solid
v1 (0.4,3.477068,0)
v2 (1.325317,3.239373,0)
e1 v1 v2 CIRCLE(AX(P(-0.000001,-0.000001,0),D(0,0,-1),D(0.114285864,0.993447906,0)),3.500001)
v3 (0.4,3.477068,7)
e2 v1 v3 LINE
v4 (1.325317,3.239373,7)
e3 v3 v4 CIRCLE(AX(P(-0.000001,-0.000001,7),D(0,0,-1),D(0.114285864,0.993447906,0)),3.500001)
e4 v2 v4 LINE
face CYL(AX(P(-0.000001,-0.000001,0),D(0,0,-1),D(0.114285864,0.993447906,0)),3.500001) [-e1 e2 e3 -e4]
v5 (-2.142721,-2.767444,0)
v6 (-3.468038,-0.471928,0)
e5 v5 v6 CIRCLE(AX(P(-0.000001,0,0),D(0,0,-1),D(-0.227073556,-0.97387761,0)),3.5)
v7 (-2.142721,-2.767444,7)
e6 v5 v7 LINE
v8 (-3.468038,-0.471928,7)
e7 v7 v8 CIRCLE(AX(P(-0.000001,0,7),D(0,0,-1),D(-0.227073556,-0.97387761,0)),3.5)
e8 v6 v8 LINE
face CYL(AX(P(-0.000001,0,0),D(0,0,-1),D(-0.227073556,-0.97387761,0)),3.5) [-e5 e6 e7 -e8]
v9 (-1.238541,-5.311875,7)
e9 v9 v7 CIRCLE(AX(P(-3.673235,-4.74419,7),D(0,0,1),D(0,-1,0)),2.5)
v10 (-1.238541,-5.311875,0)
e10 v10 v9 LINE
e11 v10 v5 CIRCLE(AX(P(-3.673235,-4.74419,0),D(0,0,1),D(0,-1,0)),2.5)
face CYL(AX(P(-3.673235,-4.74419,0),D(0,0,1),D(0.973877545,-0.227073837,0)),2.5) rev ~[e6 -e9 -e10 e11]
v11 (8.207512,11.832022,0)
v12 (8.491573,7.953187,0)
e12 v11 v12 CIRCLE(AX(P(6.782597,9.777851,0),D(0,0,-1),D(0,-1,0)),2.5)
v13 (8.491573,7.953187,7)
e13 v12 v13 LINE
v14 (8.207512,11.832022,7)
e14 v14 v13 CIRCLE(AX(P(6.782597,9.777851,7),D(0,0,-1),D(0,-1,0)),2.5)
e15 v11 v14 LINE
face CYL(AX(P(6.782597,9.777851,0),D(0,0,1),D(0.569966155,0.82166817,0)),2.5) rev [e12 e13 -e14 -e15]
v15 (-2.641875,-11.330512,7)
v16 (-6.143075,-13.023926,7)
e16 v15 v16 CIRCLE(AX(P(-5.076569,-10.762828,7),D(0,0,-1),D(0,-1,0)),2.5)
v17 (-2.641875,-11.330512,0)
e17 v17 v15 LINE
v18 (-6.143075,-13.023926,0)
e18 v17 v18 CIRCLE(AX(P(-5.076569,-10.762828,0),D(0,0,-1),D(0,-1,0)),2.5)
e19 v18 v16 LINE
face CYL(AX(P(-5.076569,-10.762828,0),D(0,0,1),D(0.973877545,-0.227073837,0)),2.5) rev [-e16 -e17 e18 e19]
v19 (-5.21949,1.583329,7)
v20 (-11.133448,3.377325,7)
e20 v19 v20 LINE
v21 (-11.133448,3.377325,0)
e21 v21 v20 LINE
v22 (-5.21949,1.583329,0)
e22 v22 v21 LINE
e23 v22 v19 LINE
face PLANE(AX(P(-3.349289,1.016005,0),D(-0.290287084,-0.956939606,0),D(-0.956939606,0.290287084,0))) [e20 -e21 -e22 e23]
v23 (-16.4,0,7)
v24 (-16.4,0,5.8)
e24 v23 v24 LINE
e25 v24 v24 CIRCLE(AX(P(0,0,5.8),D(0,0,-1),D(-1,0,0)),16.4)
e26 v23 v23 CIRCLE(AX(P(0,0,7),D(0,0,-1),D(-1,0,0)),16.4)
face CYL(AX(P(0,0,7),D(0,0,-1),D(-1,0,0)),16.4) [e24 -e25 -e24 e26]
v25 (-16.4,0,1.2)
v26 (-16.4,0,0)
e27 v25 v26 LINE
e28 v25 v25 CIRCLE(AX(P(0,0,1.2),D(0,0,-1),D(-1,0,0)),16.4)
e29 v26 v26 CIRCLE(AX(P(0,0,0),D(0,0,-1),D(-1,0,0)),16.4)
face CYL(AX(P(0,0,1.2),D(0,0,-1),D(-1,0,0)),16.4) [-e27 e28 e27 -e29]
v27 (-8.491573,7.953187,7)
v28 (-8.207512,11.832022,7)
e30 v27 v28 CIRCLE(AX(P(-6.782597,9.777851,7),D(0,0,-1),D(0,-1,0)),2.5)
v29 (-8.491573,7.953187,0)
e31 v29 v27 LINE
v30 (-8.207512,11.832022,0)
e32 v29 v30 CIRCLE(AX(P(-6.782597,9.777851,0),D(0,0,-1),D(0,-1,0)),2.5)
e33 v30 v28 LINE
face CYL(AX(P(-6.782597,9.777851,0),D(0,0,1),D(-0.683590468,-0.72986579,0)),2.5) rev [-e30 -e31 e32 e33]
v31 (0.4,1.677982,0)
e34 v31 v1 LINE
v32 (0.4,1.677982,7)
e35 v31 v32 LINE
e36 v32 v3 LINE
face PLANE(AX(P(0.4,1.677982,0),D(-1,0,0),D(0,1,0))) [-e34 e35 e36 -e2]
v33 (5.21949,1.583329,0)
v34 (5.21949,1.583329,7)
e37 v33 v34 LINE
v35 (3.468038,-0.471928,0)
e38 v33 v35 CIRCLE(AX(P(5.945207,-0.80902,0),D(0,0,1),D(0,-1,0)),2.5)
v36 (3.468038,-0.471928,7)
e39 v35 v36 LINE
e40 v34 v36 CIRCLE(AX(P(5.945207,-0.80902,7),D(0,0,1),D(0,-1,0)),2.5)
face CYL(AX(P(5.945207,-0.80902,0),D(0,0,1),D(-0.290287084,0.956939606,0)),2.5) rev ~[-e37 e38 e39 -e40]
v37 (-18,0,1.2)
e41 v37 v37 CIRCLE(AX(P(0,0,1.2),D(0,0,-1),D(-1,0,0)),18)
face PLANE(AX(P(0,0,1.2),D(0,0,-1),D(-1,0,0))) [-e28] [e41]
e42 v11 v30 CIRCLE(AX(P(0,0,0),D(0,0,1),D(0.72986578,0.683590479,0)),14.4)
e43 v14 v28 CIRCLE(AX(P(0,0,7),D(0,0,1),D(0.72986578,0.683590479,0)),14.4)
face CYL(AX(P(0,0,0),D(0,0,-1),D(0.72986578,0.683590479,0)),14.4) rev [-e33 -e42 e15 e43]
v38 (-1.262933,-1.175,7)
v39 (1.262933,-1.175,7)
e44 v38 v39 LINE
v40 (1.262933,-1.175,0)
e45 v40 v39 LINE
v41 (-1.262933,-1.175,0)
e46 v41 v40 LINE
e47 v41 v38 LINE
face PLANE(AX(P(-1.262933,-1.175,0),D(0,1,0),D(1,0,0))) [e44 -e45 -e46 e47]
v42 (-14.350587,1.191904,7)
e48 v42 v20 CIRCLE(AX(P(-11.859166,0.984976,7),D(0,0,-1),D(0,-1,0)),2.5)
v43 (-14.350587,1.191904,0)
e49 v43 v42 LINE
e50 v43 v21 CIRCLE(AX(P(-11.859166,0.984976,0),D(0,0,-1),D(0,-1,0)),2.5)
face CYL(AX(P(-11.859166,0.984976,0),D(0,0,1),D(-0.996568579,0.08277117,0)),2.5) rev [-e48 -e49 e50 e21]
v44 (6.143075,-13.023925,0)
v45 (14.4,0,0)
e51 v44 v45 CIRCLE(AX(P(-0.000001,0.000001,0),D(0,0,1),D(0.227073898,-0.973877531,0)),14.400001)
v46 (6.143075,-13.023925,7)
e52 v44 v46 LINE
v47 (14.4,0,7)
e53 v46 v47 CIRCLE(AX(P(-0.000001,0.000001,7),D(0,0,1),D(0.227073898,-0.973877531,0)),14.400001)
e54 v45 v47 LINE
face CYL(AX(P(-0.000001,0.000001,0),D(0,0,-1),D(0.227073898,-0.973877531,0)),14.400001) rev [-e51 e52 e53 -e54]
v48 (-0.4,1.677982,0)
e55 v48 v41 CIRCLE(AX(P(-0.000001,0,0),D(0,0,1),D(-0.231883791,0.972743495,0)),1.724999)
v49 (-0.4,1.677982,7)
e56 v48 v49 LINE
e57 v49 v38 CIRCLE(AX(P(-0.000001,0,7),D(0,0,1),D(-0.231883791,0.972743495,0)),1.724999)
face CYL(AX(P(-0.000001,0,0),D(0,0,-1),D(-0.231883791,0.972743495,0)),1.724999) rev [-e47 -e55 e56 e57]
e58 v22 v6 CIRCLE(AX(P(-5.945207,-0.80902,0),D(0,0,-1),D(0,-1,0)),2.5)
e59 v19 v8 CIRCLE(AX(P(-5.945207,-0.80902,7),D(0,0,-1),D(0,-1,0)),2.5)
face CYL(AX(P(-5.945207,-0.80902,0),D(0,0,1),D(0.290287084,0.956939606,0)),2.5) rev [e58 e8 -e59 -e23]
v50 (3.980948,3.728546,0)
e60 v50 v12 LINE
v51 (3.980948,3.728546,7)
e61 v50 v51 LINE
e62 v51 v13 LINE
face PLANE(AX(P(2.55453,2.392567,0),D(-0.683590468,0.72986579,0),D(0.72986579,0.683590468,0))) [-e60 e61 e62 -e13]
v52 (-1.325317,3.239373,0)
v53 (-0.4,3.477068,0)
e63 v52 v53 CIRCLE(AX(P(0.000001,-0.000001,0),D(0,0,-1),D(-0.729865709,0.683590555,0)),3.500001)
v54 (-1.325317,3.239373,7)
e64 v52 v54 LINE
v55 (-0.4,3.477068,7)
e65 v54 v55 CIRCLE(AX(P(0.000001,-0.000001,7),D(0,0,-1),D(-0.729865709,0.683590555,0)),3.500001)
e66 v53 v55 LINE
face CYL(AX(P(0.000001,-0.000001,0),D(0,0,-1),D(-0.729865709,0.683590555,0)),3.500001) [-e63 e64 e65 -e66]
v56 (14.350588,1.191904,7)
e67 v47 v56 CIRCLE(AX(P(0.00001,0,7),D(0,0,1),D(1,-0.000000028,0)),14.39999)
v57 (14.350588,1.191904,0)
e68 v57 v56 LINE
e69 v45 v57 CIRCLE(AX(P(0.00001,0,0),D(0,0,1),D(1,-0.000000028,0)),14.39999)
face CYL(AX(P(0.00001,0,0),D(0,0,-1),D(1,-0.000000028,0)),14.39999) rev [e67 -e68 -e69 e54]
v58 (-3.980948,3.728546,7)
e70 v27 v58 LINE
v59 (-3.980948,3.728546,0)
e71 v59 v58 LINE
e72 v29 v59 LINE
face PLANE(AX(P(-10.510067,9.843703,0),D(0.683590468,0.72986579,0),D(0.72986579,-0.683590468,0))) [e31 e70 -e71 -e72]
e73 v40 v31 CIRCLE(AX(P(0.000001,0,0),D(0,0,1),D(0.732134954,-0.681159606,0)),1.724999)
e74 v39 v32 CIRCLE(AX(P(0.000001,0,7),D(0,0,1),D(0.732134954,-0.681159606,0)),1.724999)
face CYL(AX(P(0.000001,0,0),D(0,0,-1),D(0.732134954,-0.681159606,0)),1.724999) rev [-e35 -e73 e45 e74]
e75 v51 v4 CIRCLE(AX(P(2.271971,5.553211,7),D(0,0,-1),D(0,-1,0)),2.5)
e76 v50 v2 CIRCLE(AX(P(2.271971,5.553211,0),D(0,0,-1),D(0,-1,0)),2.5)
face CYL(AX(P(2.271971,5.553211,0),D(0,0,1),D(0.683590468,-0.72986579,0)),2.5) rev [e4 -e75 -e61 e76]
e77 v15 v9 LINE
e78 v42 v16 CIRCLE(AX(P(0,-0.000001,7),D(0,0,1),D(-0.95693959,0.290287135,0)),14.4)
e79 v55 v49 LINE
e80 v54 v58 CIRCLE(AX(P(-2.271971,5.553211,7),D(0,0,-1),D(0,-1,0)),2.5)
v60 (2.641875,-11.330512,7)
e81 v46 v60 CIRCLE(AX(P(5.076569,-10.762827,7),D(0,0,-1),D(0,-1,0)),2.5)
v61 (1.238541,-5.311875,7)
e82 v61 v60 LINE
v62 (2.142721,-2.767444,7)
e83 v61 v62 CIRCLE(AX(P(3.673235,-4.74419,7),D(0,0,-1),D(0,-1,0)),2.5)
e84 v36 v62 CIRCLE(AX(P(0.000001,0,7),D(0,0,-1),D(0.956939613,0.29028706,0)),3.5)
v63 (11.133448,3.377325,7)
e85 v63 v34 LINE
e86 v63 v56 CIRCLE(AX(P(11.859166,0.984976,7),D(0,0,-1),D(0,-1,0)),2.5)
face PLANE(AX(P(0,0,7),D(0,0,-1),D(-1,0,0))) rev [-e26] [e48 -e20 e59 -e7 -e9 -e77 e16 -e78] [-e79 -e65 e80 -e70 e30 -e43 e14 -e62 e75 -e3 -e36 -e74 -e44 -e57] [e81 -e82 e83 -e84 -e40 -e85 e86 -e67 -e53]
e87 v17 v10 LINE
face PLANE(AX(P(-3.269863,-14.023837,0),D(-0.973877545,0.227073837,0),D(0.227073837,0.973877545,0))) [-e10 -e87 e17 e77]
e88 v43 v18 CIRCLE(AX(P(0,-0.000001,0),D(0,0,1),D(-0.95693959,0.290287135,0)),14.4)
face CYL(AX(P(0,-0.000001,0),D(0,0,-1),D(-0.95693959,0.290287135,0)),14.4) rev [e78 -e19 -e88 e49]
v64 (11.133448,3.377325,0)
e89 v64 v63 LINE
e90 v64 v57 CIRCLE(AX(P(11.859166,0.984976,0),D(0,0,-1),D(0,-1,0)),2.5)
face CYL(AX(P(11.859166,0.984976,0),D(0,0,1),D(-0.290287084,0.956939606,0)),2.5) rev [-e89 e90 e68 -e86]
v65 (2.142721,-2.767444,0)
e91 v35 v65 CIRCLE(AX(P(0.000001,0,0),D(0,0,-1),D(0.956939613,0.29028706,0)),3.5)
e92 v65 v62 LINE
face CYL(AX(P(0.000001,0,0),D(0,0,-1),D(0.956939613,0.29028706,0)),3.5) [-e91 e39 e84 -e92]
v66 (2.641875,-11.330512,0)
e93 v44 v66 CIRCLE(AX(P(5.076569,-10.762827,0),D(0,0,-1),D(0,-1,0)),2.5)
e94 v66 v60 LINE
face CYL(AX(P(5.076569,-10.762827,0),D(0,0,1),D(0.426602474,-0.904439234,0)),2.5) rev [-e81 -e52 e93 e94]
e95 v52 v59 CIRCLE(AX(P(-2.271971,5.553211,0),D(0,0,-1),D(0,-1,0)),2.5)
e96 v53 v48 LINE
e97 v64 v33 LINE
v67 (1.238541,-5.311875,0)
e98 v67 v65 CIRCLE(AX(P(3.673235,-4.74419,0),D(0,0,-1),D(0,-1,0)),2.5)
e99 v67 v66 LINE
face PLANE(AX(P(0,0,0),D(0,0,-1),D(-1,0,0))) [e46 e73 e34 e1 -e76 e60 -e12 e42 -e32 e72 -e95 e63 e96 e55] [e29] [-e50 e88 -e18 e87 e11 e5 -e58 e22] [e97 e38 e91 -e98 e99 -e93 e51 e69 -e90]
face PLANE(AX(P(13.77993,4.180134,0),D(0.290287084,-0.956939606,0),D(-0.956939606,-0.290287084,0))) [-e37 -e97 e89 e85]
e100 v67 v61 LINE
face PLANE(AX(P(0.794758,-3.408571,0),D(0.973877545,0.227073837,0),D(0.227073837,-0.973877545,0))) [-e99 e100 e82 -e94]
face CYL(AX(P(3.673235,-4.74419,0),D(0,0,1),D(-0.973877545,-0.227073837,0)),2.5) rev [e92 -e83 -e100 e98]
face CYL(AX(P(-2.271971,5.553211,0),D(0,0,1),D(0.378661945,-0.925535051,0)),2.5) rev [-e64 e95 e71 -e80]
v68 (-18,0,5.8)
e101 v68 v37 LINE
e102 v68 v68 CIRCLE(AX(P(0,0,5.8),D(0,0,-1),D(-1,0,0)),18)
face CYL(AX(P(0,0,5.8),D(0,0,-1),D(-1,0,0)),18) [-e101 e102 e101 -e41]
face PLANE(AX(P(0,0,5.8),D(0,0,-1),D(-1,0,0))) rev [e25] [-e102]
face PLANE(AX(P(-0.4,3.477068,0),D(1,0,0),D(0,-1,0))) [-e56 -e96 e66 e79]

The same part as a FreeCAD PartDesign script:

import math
import FreeCAD as App
import Part
import Sketcher
Q = App.Units.Quantity


def edges_at(feature, points):
    """Names of the edges that pass closest to the given points."""
    edges = feature.Shape.Edges
    near = lambda p: min(range(len(edges)), key=lambda i: edges[i].distToShape(Part.Vertex(*p))[0])
    return sorted({f"Edge{near(p) + 1}" for p in points})

doc = App.newDocument("Part")
params = doc.addObject("Spreadsheet::Sheet", "Params")
for row, (alias, value) in enumerate([
    ("sketch1_height", "7 mm"),
    ("sketch1_width", "16.4 mm"),
    ("sketch1_width2", "1.6 mm"),
    ("sketch1_height2", "1.2 mm"),
    ("revolution_angle", "360 deg"),
    ("sketch2_radius", "3.500001 mm"),
    ("sketch2_radius2", "14.4 mm"),
    ("fillet_radius", "2.5 mm"),
], start=1):
    params.set(f"A{row}", alias)
    params.set(f"B{row}", "=" + value)
    params.setAlias(f"B{row}", alias)

body = doc.addObject("PartDesign::Body", "Body")

# Sketch on XZ plane
sketch1 = body.newObject("Sketcher::SketchObject", "Sketch")
sketch1.AttachmentSupport = (doc.getObject("XZ_Plane"), [""])
sketch1.MapMode = "FlatFace"
sketch1.addGeometry([
    Part.LineSegment(App.Vector(-16.4, 0, 0), App.Vector(0, 0, 0)),  # 0
    Part.LineSegment(App.Vector(0, 0, 0), App.Vector(0, 7, 0)),  # 1
    Part.LineSegment(App.Vector(0, 7, 0), App.Vector(-16.4, 7, 0)),  # 2
    Part.LineSegment(App.Vector(-16.4, 7, 0), App.Vector(-16.4, 5.8, 0)),  # 3
    Part.LineSegment(App.Vector(-16.4, 5.8, 0), App.Vector(-18, 5.8, 0)),  # 4
    Part.LineSegment(App.Vector(-18, 5.8, 0), App.Vector(-18, 1.2, 0)),  # 5
    Part.LineSegment(App.Vector(-18, 1.2, 0), App.Vector(-16.4, 1.2, 0)),  # 6
    Part.LineSegment(App.Vector(-16.4, 1.2, 0), App.Vector(-16.4, 0, 0)),  # 7
], False)
sketch1.addConstraint([
    Sketcher.Constraint("Coincident", 0, 2, 1, 1),
    Sketcher.Constraint("Coincident", 1, 2, 2, 1),
    Sketcher.Constraint("Coincident", 2, 2, 3, 1),
    Sketcher.Constraint("Coincident", 3, 2, 4, 1),
    Sketcher.Constraint("Coincident", 4, 2, 5, 1),
    Sketcher.Constraint("Coincident", 5, 2, 6, 1),
    Sketcher.Constraint("Coincident", 6, 2, 7, 1),
    Sketcher.Constraint("Coincident", 7, 2, 0, 1),
    Sketcher.Constraint("Horizontal", 0),
    Sketcher.Constraint("Vertical", 1),
    Sketcher.Constraint("Horizontal", 2),
    Sketcher.Constraint("Vertical", 3),
    Sketcher.Constraint("Horizontal", 4),
    Sketcher.Constraint("Vertical", 5),
    Sketcher.Constraint("Horizontal", 6),
    Sketcher.Constraint("Vertical", 7),
    Sketcher.Constraint("Coincident", 0, 2, -1, 1),
    Sketcher.Constraint("Vertical", 3, 2, 6, 2),
    Sketcher.Constraint("Equal", 3, 7),
    Sketcher.Constraint("DistanceY", 1, 1, 1, 2, Q("7 mm")),
    Sketcher.Constraint("DistanceX", 0, 1, 0, 2, Q("16.4 mm")),
    Sketcher.Constraint("DistanceX", 4, 2, 4, 1, Q("1.6 mm")),
    Sketcher.Constraint("DistanceY", 3, 2, 3, 1, Q("1.2 mm")),
])
sketch1.setExpression("Constraints[19]", "Params.sketch1_height")
sketch1.setExpression("Constraints[20]", "Params.sketch1_width")
sketch1.setExpression("Constraints[21]", "Params.sketch1_width2")
sketch1.setExpression("Constraints[22]", "Params.sketch1_height2")
revolution = body.newObject("PartDesign::Revolution", "Revolution")
revolution.Profile = sketch1
revolution.ReferenceAxis = (sketch1, ["V_Axis"])
revolution.setExpression("Angle", "Params.revolution_angle")

# Sketch on XY plane
sketch2 = body.newObject("Sketcher::SketchObject", "Sketch001")
sketch2.AttachmentSupport = (doc.getObject("XY_Plane"), [""])
sketch2.MapMode = "FlatFace"
sketch2.addGeometry([
    Part.LineSegment(App.Vector(-0.4, 3.5, 0), App.Vector(-0.4, 1.7, 0)),  # 0
    Part.ArcOfCircle(Part.Circle(App.Vector(0, 0, 0), App.Vector(0, 0, 1), 1.7), math.radians(103), math.radians(223)),  # 1
    Part.LineSegment(App.Vector(-1.3, -1.2, 0), App.Vector(1.3, -1.2, 0)),  # 2
    Part.ArcOfCircle(Part.Circle(App.Vector(0, 0, 0), App.Vector(0, 0, 1), 1.7), math.radians(-43), math.radians(77)),  # 3
    Part.LineSegment(App.Vector(0.4, 1.7, 0), App.Vector(0.4, 3.5, 0)),  # 4
    Part.ArcOfCircle(Part.Circle(App.Vector(0, 0, 0), App.Vector(0, 0, 1), 3.5), math.radians(43), math.radians(83)),  # 5
    Part.LineSegment(App.Vector(2.6, 2.4, 0), App.Vector(10.5, 9.8, 0)),  # 6
    Part.ArcOfCircle(Part.Circle(App.Vector(0, 0, 0), App.Vector(0, 0, 1), 14.4), math.radians(43), math.radians(137)),  # 7
    Part.LineSegment(App.Vector(-10.5, 9.8, 0), App.Vector(-2.6, 2.4, 0)),  # 8
    Part.ArcOfCircle(Part.Circle(App.Vector(0, 0, 0), App.Vector(0, 0, 1), 3.5), math.radians(97), math.radians(137)),  # 9
    Part.ArcOfCircle(Part.Circle(App.Vector(0, 0, 0), App.Vector(0, 0, 1), 3.5), math.radians(-77), math.radians(17)),  # 10
    Part.LineSegment(App.Vector(0.8, -3.4, 0), App.Vector(3.3, -14, 0)),  # 11
    Part.ArcOfCircle(Part.Circle(App.Vector(0, 0, 0), App.Vector(0, 0, 1), 14.4), math.radians(-77), math.radians(0)),  # 12
    Part.ArcOfCircle(Part.Circle(App.Vector(0, 0, 0), App.Vector(0, 0, 1), 14.4), math.radians(0), math.radians(16.88)),  # 13
    Part.LineSegment(App.Vector(13.8, 4.2, 0), App.Vector(3.3, 1, 0)),  # 14
    Part.ArcOfCircle(Part.Circle(App.Vector(0, 0, 0), App.Vector(0, 0, 1), 3.5), math.radians(163), math.radians(257)),  # 15
    Part.LineSegment(App.Vector(-3.3, 1, 0), App.Vector(-13.8, 4.2, 0)),  # 16
    Part.ArcOfCircle(Part.Circle(App.Vector(0, 0, 0), App.Vector(0, 0, 1), 14.4), math.radians(163), math.radians(257)),  # 17
    Part.LineSegment(App.Vector(-3.3, -14, 0), App.Vector(-0.8, -3.4, 0)),  # 18
], False)
sketch2.addConstraint([
    Sketcher.Constraint("Coincident", 0, 2, 1, 1),
    Sketcher.Constraint("Coincident", 1, 2, 2, 1),
    Sketcher.Constraint("Coincident", 2, 2, 3, 1),
    Sketcher.Constraint("Coincident", 3, 2, 4, 1),
    Sketcher.Constraint("Coincident", 4, 2, 5, 2),
    Sketcher.Constraint("Coincident", 5, 1, 6, 1),
    Sketcher.Constraint("Coincident", 6, 2, 7, 1),
    Sketcher.Constraint("Coincident", 7, 2, 8, 1),
    Sketcher.Constraint("Coincident", 8, 2, 9, 2),
    Sketcher.Constraint("Coincident", 9, 1, 0, 1),
    Sketcher.Constraint("Coincident", 10, 1, 11, 1),
    Sketcher.Constraint("Coincident", 11, 2, 12, 1),
    Sketcher.Constraint("Tangent", 12, 2, 13, 1),
    Sketcher.Constraint("Coincident", 13, 2, 14, 1),
    Sketcher.Constraint("Coincident", 14, 2, 10, 2),
    Sketcher.Constraint("Coincident", 15, 1, 16, 1),
    Sketcher.Constraint("Coincident", 16, 2, 17, 1),
    Sketcher.Constraint("Coincident", 17, 2, 18, 1),
    Sketcher.Constraint("Coincident", 18, 2, 15, 2),
    Sketcher.Constraint("Vertical", 0),
    Sketcher.Constraint("Horizontal", 2),
    Sketcher.Constraint("Vertical", 4),
    Sketcher.Constraint("Coincident", 1, 3, -1, 1),
    Sketcher.Constraint("Coincident", 3, 3, -1, 1),
    Sketcher.Constraint("Coincident", 5, 3, -1, 1),
    Sketcher.Constraint("Coincident", 7, 3, -1, 1),
    Sketcher.Constraint("Coincident", 9, 3, -1, 1),
    Sketcher.Constraint("Coincident", 10, 3, -1, 1),
    Sketcher.Constraint("Coincident", 12, 3, -1, 1),
    Sketcher.Constraint("Coincident", 15, 3, -1, 1),
    Sketcher.Constraint("Coincident", 17, 3, -1, 1),
    Sketcher.Constraint("Equal", 1, 3),
    Sketcher.Constraint("Equal", 5, 9),
    Sketcher.Constraint("Equal", 9, 10),
    Sketcher.Constraint("Equal", 7, 12),
    Sketcher.Constraint("Equal", 10, 15),
    Sketcher.Constraint("Equal", 12, 17),
    Sketcher.Constraint("Symmetric", 13, 2, 16, 2, -2),
    Sketcher.Constraint("PointOnObject", 12, 2, -1),
    Sketcher.Constraint("Horizontal", 0, 2, 3, 2),
    Sketcher.Constraint("Horizontal", 6, 2, 7, 2),
    Sketcher.Constraint("Horizontal", 5, 1, 8, 2),
    Sketcher.Constraint("Horizontal", 14, 2, 15, 1),
    Sketcher.Constraint("Horizontal", 11, 2, 17, 2),
    Sketcher.Constraint("Horizontal", 10, 1, 18, 2),
    Sketcher.Constraint("Radius", 5, Q("3.500001 mm")),
    Sketcher.Constraint("Radius", 7, Q("14.4 mm")),
    Sketcher.Constraint("Radius", 1, Q("1.724999 mm")),
    Sketcher.Constraint("DistanceX", 3, 2, 12, 2, Q("14 mm")),
    Sketcher.Constraint("DistanceY", 1, 2, -1, 1, Q("1.175 mm")),
    Sketcher.Constraint("DistanceY", 5, 1, 4, 2, Q("1.084501 mm")),
    Sketcher.Constraint("DistanceX", 5, 1, 13, 2, Q("11.2254 mm")),
    Sketcher.Constraint("DistanceY", 10, 1, -1, 1, Q("3.408571 mm")),
    Sketcher.Constraint("DistanceX", -1, 1, 14, 2, Q("3.349289 mm")),
    Sketcher.Constraint("DistanceY", 3, 2, 6, 2, Q("8.165721 mm")),
    Sketcher.Constraint("DistanceX", 2, 2, 11, 2, Q("2.00693 mm")),
])
sketch2.setExpression("Constraints[45]", "Params.sketch2_radius")
sketch2.setExpression("Constraints[46]", "Params.sketch2_radius2")
pocket1 = body.newObject("PartDesign::Pocket", "Pocket")
pocket1.Profile = sketch2
pocket1.Type = "ThroughAll"
pocket1.Reversed = True
doc.recompute()

fillet = body.newObject("PartDesign::Fillet", "Fillet")
fillet.Base = (pocket1, edges_at(pocket1, [
    (-3.349, 1.016, 3.5),
    (-0.795, -3.409, 3.5),
    (0.795, -3.409, 3.5),
    (3.349, 1.016, 3.5),
    (-2.555, 2.393, 3.5),
    (2.555, 2.393, 3.5),
    (-10.51, 9.844, 3.5),
    (10.51, 9.844, 3.5),
    (13.78, 4.18, 3.5),
    (3.27, -14.024, 3.5),
    (-3.27, -14.024, 3.5),
    (-13.78, 4.18, 3.5),
]))
fillet.setExpression("Radius", "Params.fillet_radius")

doc.recompute()
